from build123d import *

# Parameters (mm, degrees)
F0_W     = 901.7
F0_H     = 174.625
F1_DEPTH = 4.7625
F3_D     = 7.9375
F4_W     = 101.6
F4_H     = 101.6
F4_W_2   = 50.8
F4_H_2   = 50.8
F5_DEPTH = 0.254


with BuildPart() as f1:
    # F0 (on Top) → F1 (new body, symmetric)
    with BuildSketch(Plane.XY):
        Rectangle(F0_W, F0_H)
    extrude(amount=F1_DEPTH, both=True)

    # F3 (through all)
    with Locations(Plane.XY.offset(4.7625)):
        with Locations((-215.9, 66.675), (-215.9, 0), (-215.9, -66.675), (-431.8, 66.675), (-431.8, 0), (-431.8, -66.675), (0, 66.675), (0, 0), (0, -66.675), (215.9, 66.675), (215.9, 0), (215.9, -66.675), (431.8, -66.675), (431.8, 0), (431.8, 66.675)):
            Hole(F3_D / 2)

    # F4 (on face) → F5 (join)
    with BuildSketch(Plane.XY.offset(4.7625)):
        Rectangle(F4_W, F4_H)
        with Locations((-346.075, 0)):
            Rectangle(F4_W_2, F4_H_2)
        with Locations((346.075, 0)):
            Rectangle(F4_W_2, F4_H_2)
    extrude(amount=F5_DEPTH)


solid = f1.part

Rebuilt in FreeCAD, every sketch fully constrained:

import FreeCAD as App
import Part
import Sketcher
from FreeCAD import Vector
Q = App.Units.Quantity

doc = App.newDocument("Part")
body = doc.addObject("PartDesign::Body", "Body")

# Sketch on XY plane
sketch1 = doc.addObject("Sketcher::SketchObject", "Sketch")
body.addObject(sketch1)
sketch1.AttachmentSupport = (doc.XY_Plane, [""])
sketch1.MapMode = "FlatFace"
sketch1.addGeometry([
    Part.LineSegment(Vector(-451, 87, 0), Vector(-451, -87, 0)),
    Part.LineSegment(Vector(-451, -87, 0), Vector(451, -87, 0)),
    Part.LineSegment(Vector(451, -87, 0), Vector(451, 87, 0)),
    Part.LineSegment(Vector(451, 87, 0), Vector(-451, 87, 0)),
], False)
sketch1.addConstraint([
    Sketcher.Constraint("Coincident", 0, 2, 1, 1),
    Sketcher.Constraint("Coincident", 1, 2, 2, 1),
    Sketcher.Constraint("Coincident", 2, 2, 3, 1),
    Sketcher.Constraint("Coincident", 3, 2, 0, 1),
    Sketcher.Constraint("Vertical", 0),
    Sketcher.Constraint("Horizontal", 1),
    Sketcher.Constraint("Vertical", 2),
    Sketcher.Constraint("Horizontal", 3),
    Sketcher.Constraint("Symmetric", 0, 2, 2, 2, -1, 1),
    Sketcher.Constraint("DistanceX", 1, 1, 1, 2, Q("35.5 in")),
    Sketcher.Constraint("DistanceY", 0, 2, 0, 1, Q("6.875 in")),
])
pad1 = doc.addObject("PartDesign::Pad", "Pad")
body.addObject(pad1)
pad1.Profile = sketch1
pad1.Length = Q("0.375 in")
pad1.Midplane = True

# Sketch on XY plane
sketch2 = doc.addObject("Sketcher::SketchObject", "Sketch001")
body.addObject(sketch2)
sketch2.AttachmentSupport = (doc.XY_Plane, [""])
sketch2.MapMode = "FlatFace"
sketch2.AttachmentOffset = App.Placement(Vector(0, 0, 0.1875 * 25.4), App.Rotation())
sketch2.addGeometry([
    Part.Circle(Vector(-215.9, 66.7, 0), Vector(0, 0, 1), 4),  # 0
    Part.Circle(Vector(-215.9, 0, 0), Vector(0, 0, 1), 4),  # 1
    Part.Circle(Vector(-215.9, -66.7, 0), Vector(0, 0, 1), 4),  # 2
    Part.Circle(Vector(-431.8, 66.7, 0), Vector(0, 0, 1), 4),  # 3
    Part.Circle(Vector(-431.8, 0, 0), Vector(0, 0, 1), 4),  # 4
    Part.Circle(Vector(-431.8, -66.7, 0), Vector(0, 0, 1), 4),  # 5
    Part.Circle(Vector(0, 66.7, 0), Vector(0, 0, 1), 4),  # 6
    Part.Circle(Vector(0, 0, 0), Vector(0, 0, 1), 4),  # 7
    Part.Circle(Vector(0, -66.7, 0), Vector(0, 0, 1), 4),  # 8
    Part.Circle(Vector(215.9, 66.7, 0), Vector(0, 0, 1), 4),  # 9
    Part.Circle(Vector(215.9, 0, 0), Vector(0, 0, 1), 4),  # 10
    Part.Circle(Vector(215.9, -66.7, 0), Vector(0, 0, 1), 4),  # 11
    Part.Circle(Vector(431.8, -66.7, 0), Vector(0, 0, 1), 4),  # 12
    Part.Circle(Vector(431.8, 0, 0), Vector(0, 0, 1), 4),  # 13
    Part.Circle(Vector(431.8, 66.7, 0), Vector(0, 0, 1), 4),  # 14
], False)
sketch2.addConstraint([
    Sketcher.Constraint("Coincident", 7, 3, -1, 1),
    Sketcher.Constraint("Equal", 0, 1),
    Sketcher.Constraint("Equal", 1, 2),
    Sketcher.Constraint("Equal", 2, 3),
    Sketcher.Constraint("Equal", 3, 4),
    Sketcher.Constraint("Equal", 4, 5),
    Sketcher.Constraint("Equal", 5, 6),
    Sketcher.Constraint("Equal", 6, 7),
    Sketcher.Constraint("Equal", 7, 8),
    Sketcher.Constraint("Equal", 8, 9),
    Sketcher.Constraint("Equal", 9, 10),
    Sketcher.Constraint("Equal", 10, 11),
    Sketcher.Constraint("Equal", 11, 12),
    Sketcher.Constraint("Equal", 12, 13),
    Sketcher.Constraint("Equal", 13, 14),
    Sketcher.Constraint("Symmetric", 6, 3, 8, 3, -1, 1),
    Sketcher.Constraint("Symmetric", 2, 3, 9, 3, -1, 1),
    Sketcher.Constraint("Symmetric", 1, 3, 10, 3, -1, 1),
    Sketcher.Constraint("Symmetric", 0, 3, 11, 3, -1, 1),
    Sketcher.Constraint("Symmetric", 3, 3, 12, 3, -1, 1),
    Sketcher.Constraint("Symmetric", 4, 3, 13, 3, -1, 1),
    Sketcher.Constraint("Symmetric", 5, 3, 14, 3, -1, 1),
    Sketcher.Constraint("Symmetric", 0, 3, 9, 3, -2),
    Sketcher.Constraint("Symmetric", 5, 3, 12, 3, -2),
    Sketcher.Constraint("PointOnObject", 1, 3, -1),
    Sketcher.Constraint("PointOnObject", 4, 3, -1),
    Sketcher.Constraint("PointOnObject", 6, 3, -2),
    Sketcher.Constraint("Horizontal", 0, 3, 3, 3),
    Sketcher.Constraint("Horizontal", 3, 3, 6, 3),
    Sketcher.Constraint("Vertical", 0, 3, 1, 3),
    Sketcher.Constraint("Vertical", 3, 3, 4, 3),
    Sketcher.Constraint("Diameter", 0, Q("0.3125 in")),
    Sketcher.Constraint("DistanceX", 3, 3, -1, 1, Q("17 in")),
    Sketcher.Constraint("DistanceX", 0, 3, 9, 3, Q("17 in")),
    Sketcher.Constraint("DistanceY", 2, 3, 0, 3, Q("5.25 in")),
])
doc.recompute()
hole = doc.addObject("PartDesign::Hole", "Hole")
body.addObject(hole)
hole.Profile = sketch2
hole.ThreadType = "None"
hole.Diameter = Q("0.3125 in")
hole.DepthType = "ThroughAll"

# Sketch on XY plane
sketch3 = doc.addObject("Sketcher::SketchObject", "Sketch002")
body.addObject(sketch3)
sketch3.AttachmentSupport = (doc.XY_Plane, [""])
sketch3.MapMode = "FlatFace"
sketch3.AttachmentOffset = App.Placement(Vector(0, 0, 0.1875 * 25.4), App.Rotation())
sketch3.addGeometry([
    Part.LineSegment(Vector(-51, 51, 0), Vector(-51, -51, 0)),  # 0
    Part.LineSegment(Vector(-51, -51, 0), Vector(51, -51, 0)),  # 1
    Part.LineSegment(Vector(51, -51, 0), Vector(51, 51, 0)),  # 2
    Part.LineSegment(Vector(51, 51, 0), Vector(-51, 51, 0)),  # 3
    Part.LineSegment(Vector(-371, 25, 0), Vector(-371, -25, 0)),  # 4
    Part.LineSegment(Vector(-371, -25, 0), Vector(-321, -25, 0)),  # 5
    Part.LineSegment(Vector(-321, -25, 0), Vector(-321, 25, 0)),  # 6
    Part.LineSegment(Vector(-321, 25, 0), Vector(-371, 25, 0)),  # 7
    Part.LineSegment(Vector(321, 25, 0), Vector(321, -25, 0)),  # 8
    Part.LineSegment(Vector(321, -25, 0), Vector(371, -25, 0)),  # 9
    Part.LineSegment(Vector(371, -25, 0), Vector(371, 25, 0)),  # 10
    Part.LineSegment(Vector(371, 25, 0), Vector(321, 25, 0)),  # 11
], False)
sketch3.addConstraint([
    Sketcher.Constraint("Coincident", 0, 2, 1, 1),
    Sketcher.Constraint("Coincident", 1, 2, 2, 1),
    Sketcher.Constraint("Coincident", 2, 2, 3, 1),
    Sketcher.Constraint("Coincident", 3, 2, 0, 1),
    Sketcher.Constraint("Coincident", 4, 2, 5, 1),
    Sketcher.Constraint("Coincident", 5, 2, 6, 1),
    Sketcher.Constraint("Coincident", 6, 2, 7, 1),
    Sketcher.Constraint("Coincident", 7, 2, 4, 1),
    Sketcher.Constraint("Coincident", 8, 2, 9, 1),
    Sketcher.Constraint("Coincident", 9, 2, 10, 1),
    Sketcher.Constraint("Coincident", 10, 2, 11, 1),
    Sketcher.Constraint("Coincident", 11, 2, 8, 1),
    Sketcher.Constraint("Vertical", 0),
    Sketcher.Constraint("Horizontal", 1),
    Sketcher.Constraint("Vertical", 2),
    Sketcher.Constraint("Horizontal", 3),
    Sketcher.Constraint("Vertical", 4),
    Sketcher.Constraint("Horizontal", 5),
    Sketcher.Constraint("Vertical", 6),
    Sketcher.Constraint("Horizontal", 7),
    Sketcher.Constraint("Vertical", 8),
    Sketcher.Constraint("Horizontal", 9),
    Sketcher.Constraint("Vertical", 10),
    Sketcher.Constraint("Horizontal", 11),
    Sketcher.Constraint("Symmetric", 0, 2, 2, 2, -1, 1),
    Sketcher.Constraint("Symmetric", 6, 2, 8, 2, -1, 1),
    Sketcher.Constraint("Symmetric", 4, 2, 10, 2, -1, 1),
    Sketcher.Constraint("Horizontal", 5, 2, 8, 2),
    Sketcher.Constraint("Equal", 3, 0),
    Sketcher.Constraint("Equal", 11, 4),
    Sketcher.Constraint("DistanceX", 1, 1, 1, 2, Q("4 in")),
    Sketcher.Constraint("DistanceX", 5, 1, 5, 2, Q("2 in")),
    Sketcher.Constraint("DistanceX", 5, 2, 8, 2, Q("25.25 in")),
])
pad2 = doc.addObject("PartDesign::Pad", "Pad001")
body.addObject(pad2)
pad2.Profile = sketch3
pad2.Length = Q("0.01 in")

doc.recompute()
